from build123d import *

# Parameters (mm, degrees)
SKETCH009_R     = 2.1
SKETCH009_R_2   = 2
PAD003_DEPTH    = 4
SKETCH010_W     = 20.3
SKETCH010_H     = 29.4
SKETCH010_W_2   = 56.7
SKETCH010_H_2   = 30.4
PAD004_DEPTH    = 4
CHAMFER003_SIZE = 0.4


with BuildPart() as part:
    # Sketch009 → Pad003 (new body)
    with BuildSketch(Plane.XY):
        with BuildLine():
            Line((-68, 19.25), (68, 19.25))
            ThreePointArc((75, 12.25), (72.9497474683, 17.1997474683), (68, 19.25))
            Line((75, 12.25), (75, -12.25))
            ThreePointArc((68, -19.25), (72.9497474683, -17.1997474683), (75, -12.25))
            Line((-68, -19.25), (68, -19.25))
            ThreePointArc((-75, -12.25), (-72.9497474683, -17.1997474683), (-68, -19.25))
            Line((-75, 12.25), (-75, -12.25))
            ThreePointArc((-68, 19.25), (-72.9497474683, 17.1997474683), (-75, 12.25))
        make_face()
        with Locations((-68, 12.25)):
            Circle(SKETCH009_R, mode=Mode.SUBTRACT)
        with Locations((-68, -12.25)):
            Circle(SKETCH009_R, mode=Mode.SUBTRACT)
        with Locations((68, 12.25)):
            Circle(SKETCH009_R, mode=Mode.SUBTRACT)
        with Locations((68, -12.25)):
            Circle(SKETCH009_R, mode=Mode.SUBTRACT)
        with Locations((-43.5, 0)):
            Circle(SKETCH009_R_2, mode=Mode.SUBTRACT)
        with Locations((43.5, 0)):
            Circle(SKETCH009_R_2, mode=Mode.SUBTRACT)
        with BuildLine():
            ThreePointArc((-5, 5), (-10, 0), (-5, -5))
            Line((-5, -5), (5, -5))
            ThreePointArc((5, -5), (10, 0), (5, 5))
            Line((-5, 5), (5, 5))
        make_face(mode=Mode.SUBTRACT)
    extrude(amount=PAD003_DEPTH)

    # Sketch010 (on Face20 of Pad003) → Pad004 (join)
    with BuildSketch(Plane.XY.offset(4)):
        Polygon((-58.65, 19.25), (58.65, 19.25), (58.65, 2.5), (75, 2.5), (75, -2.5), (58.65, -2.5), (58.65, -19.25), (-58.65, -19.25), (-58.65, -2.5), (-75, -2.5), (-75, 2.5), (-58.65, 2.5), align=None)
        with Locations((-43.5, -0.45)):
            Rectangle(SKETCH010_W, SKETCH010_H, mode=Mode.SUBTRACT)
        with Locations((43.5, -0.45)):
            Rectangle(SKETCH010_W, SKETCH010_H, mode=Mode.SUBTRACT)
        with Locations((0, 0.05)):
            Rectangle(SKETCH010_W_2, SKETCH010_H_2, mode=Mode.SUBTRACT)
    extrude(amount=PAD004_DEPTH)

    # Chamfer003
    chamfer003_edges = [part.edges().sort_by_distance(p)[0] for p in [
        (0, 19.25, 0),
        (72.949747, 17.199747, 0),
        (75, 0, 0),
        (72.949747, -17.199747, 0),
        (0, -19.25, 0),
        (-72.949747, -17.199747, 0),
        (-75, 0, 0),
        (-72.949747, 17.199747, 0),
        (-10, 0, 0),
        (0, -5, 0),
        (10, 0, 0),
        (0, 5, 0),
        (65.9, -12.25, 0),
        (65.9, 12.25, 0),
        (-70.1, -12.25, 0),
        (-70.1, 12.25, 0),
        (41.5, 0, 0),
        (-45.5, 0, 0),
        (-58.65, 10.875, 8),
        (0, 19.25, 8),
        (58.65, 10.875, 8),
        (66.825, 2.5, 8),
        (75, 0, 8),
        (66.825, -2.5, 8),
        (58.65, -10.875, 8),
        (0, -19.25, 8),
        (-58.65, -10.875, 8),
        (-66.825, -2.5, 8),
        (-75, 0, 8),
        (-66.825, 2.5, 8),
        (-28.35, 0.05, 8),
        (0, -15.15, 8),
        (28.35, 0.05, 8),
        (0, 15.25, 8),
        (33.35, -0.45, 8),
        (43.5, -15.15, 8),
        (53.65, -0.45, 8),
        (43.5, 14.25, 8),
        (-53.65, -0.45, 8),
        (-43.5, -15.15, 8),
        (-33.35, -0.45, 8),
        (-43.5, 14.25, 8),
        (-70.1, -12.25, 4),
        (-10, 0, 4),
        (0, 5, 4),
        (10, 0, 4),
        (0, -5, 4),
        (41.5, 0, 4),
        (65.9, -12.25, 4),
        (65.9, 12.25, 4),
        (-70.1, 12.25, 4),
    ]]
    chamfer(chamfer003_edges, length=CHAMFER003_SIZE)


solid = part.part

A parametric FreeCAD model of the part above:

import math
import FreeCAD as App
import Part
import Sketcher
from FreeCAD import Vector
Q = App.Units.Quantity


def edges_at(feature, points):
    """Names of the edges that pass closest to the given points."""
    edges = feature.Shape.Edges
    near = lambda p: min(range(len(edges)), key=lambda i: edges[i].distToShape(Part.Vertex(*p))[0])
    return sorted({f"Edge{near(p) + 1}" for p in points})


def add_polygon(sketch, points):
    """Adds a closed chain of lines whose ends are joined by coincident constraints."""
    first, n = sketch.GeometryCount, len(points)
    for a, b in zip(points, points[1:] + points[:1]):
        sketch.addGeometry(Part.LineSegment(App.Vector(*a, 0), App.Vector(*b, 0)), False)
    for i in range(n):
        sketch.addConstraint(Sketcher.Constraint("Coincident", first + i, 2, first + (i + 1) % n, 1))

doc = App.newDocument("Part")
body = doc.addObject("PartDesign::Body", "Body")

# Sketch on XY plane
sketch1 = body.newObject("Sketcher::SketchObject", "Sketch")
sketch1.AttachmentSupport = (doc.getObject("XY_Plane"), [""])
sketch1.MapMode = "FlatFace"
sketch1.addGeometry([
    Part.LineSegment(Vector(68, 19.2, 0), Vector(-68, 19.2, 0)),  # 0
    Part.ArcOfCircle(Part.Circle(Vector(-68, 12.2, 0), Vector(0, 0, 1), 7), math.radians(90), math.radians(180)),  # 1
    Part.LineSegment(Vector(-75, 12.2, 0), Vector(-75, -12.2, 0)),  # 2
    Part.ArcOfCircle(Part.Circle(Vector(-68, -12.2, 0), Vector(0, 0, 1), 7), math.radians(180), math.radians(270)),  # 3
    Part.LineSegment(Vector(-68, -19.2, 0), Vector(68, -19.2, 0)),  # 4
    Part.ArcOfCircle(Part.Circle(Vector(68, -12.2, 0), Vector(0, 0, 1), 7), math.radians(-90), math.radians(0)),  # 5
    Part.LineSegment(Vector(75, -12.2, 0), Vector(75, 12.2, 0)),  # 6
    Part.ArcOfCircle(Part.Circle(Vector(68, 12.2, 0), Vector(0, 0, 1), 7), math.radians(0), math.radians(90)),  # 7
    Part.Circle(Vector(68, -12.2, 0), Vector(0, 0, 1), 2.1),  # 8
    Part.Circle(Vector(-68, -12.2, 0), Vector(0, 0, 1), 2.1),  # 9
    Part.Circle(Vector(43.5, 0, 0), Vector(0, 0, 1), 2),  # 10
    Part.Circle(Vector(68, 12.2, 0), Vector(0, 0, 1), 2.1),  # 11
    Part.LineSegment(Vector(-5, 5, 0), Vector(5, 5, 0)),  # 12
    Part.ArcOfCircle(Part.Circle(Vector(5, 0, 0), Vector(0, 0, 1), 5), math.radians(-90), math.radians(90)),  # 13
    Part.LineSegment(Vector(5, -5, 0), Vector(-5, -5, 0)),  # 14
    Part.ArcOfCircle(Part.Circle(Vector(-5, 0, 0), Vector(0, 0, 1), 5), math.radians(90), math.radians(270)),  # 15
    Part.Circle(Vector(-43.5, 0, 0), Vector(0, 0, 1), 2),  # 16
    Part.Circle(Vector(-68, 12.2, 0), Vector(0, 0, 1), 2.1),  # 17
], False)
sketch1.addConstraint([
    Sketcher.Constraint("Tangent", 0, 2, 1, 1),
    Sketcher.Constraint("Tangent", 1, 2, 2, 1),
    Sketcher.Constraint("Tangent", 2, 2, 3, 1),
    Sketcher.Constraint("Tangent", 3, 2, 4, 1),
    Sketcher.Constraint("Tangent", 4, 2, 5, 1),
    Sketcher.Constraint("Tangent", 5, 2, 6, 1),
    Sketcher.Constraint("Tangent", 6, 2, 7, 1),
    Sketcher.Constraint("Tangent", 7, 2, 0, 1),
    Sketcher.Constraint("Tangent", 12, 2, 13, 2),
    Sketcher.Constraint("Tangent", 13, 1, 14, 1),
    Sketcher.Constraint("Tangent", 14, 2, 15, 2),
    Sketcher.Constraint("Tangent", 15, 1, 12, 1),
    Sketcher.Constraint("Horizontal", 0),
    Sketcher.Constraint("Vertical", 2),
    Sketcher.Constraint("Horizontal", 4),
    Sketcher.Constraint("Vertical", 6),
    Sketcher.Constraint("Horizontal", 12),
    Sketcher.Constraint("Horizontal", 14),
    Sketcher.Constraint("Coincident", 8, 3, 5, 3),
    Sketcher.Constraint("Coincident", 9, 3, 3, 3),
    Sketcher.Constraint("Coincident", 11, 3, 7, 3),
    Sketcher.Constraint("Coincident", 17, 3, 1, 3),
    Sketcher.Constraint("Equal", 1, 3),
    Sketcher.Constraint("Equal", 3, 5),
    Sketcher.Constraint("Equal", 5, 7),
    Sketcher.Constraint("Equal", 8, 9),
    Sketcher.Constraint("Equal", 9, 11),
    Sketcher.Constraint("Equal", 10, 16),
    Sketcher.Constraint("Equal", 11, 17),
    Sketcher.Constraint("Symmetric", 1, 3, 5, 3, -1, 1),
    Sketcher.Constraint("Symmetric", 13, 3, 15, 3, -1, 1),
    Sketcher.Constraint("Symmetric", 10, 3, 16, 3, -1, 1),
    Sketcher.Constraint("PointOnObject", 10, 3, -1),
    Sketcher.Constraint("Diameter", 10, Q("4 mm")),
    Sketcher.Constraint("Radius", 1, Q("7 mm")),
    Sketcher.Constraint("Radius", 13, Q("5 mm")),
    Sketcher.Constraint("Diameter", 8, Q("4.2 mm")),
    Sketcher.Constraint("DistanceX", 0, 2, 0, 1, Q("136 mm")),
    Sketcher.Constraint("DistanceX", 12, 1, 12, 2, Q("10 mm")),
    Sketcher.Constraint("DistanceY", 2, 2, 2, 1, Q("24.5 mm")),
    Sketcher.Constraint("DistanceX", -1, 1, 10, 3, Q("43.5 mm")),
])
pad1 = body.newObject("PartDesign::Pad", "Pad")
pad1.Profile = sketch1
pad1.Length = 4

# Sketch on XY plane
sketch2 = body.newObject("Sketcher::SketchObject", "Sketch001")
sketch2.AttachmentSupport = (doc.getObject("XY_Plane"), [""])
sketch2.MapMode = "FlatFace"
sketch2.AttachmentOffset = App.Placement(Vector(0, 0, 4), App.Rotation())
add_polygon(sketch2, [(59, 19), (-59, 19), (-59, 2), (-75, 2), (-75, -2), (-59, -2), (-59, -19), (59, -19), (59, -2), (75, -2), (75, 2), (59, 2)])  # lines 0-11
add_polygon(sketch2, [(33, -15), (33, 14), (54, 14), (54, -15)])  # lines 12-15
add_polygon(sketch2, [(-28, -15), (-28, 15), (28, 15), (28, -15)])  # lines 16-19
add_polygon(sketch2, [(-54, -15), (-54, 14), (-33, 14), (-33, -15)])  # lines 20-23
sketch2.addConstraint([
    Sketcher.Constraint("Horizontal", 0),
    Sketcher.Constraint("Vertical", 1),
    Sketcher.Constraint("Horizontal", 2),
    Sketcher.Constraint("Vertical", 3),
    Sketcher.Constraint("Horizontal", 4),
    Sketcher.Constraint("Vertical", 5),
    Sketcher.Constraint("Horizontal", 6),
    Sketcher.Constraint("Vertical", 7),
    Sketcher.Constraint("Horizontal", 8),
    Sketcher.Constraint("Vertical", 9),
    Sketcher.Constraint("Horizontal", 10),
    Sketcher.Constraint("Vertical", 11),
    Sketcher.Constraint("Vertical", 12),
    Sketcher.Constraint("Horizontal", 13),
    Sketcher.Constraint("Vertical", 14),
    Sketcher.Constraint("Horizontal", 15),
    Sketcher.Constraint("Vertical", 16),
    Sketcher.Constraint("Horizontal", 17),
    Sketcher.Constraint("Vertical", 18),
    Sketcher.Constraint("Horizontal", 19),
    Sketcher.Constraint("Vertical", 20),
    Sketcher.Constraint("Horizontal", 21),
    Sketcher.Constraint("Vertical", 22),
    Sketcher.Constraint("Horizontal", 23),
    Sketcher.Constraint("Symmetric", 0, 2, 6, 2, -1, 1),
    Sketcher.Constraint("Symmetric", 2, 2, 8, 2, -1, 1),
    Sketcher.Constraint("Symmetric", 4, 2, 10, 2, -1, 1),
    Sketcher.Constraint("Symmetric", 4, 2, 7, 2, -2),
    Sketcher.Constraint("Symmetric", 13, 2, 20, 2, -2),
    Sketcher.Constraint("Symmetric", 15, 2, 22, 2, -2),
    Sketcher.Constraint("Horizontal", 15, 2, 18, 2),
    Sketcher.Constraint("DistanceY", 3, 2, 3, 1, Q("5 mm")),
    Sketcher.Constraint("DistanceX", 0, 2, 0, 1, Q("117.3 mm")),
    Sketcher.Constraint("DistanceX", 13, 1, 13, 2, Q("20.3 mm")),
    Sketcher.Constraint("DistanceX", 17, 1, 17, 2, Q("56.7 mm")),
    Sketcher.Constraint("DistanceY", 12, 1, 12, 2, Q("29.4 mm")),
    Sketcher.Constraint("DistanceY", 16, 1, 16, 2, Q("30.4 mm")),
    Sketcher.Constraint("DistanceX", 2, 2, -1, 1, Q("75 mm")),
    Sketcher.Constraint("DistanceY", 12, 2, 11, 2, Q("5 mm")),
    Sketcher.Constraint("DistanceX", 13, 2, 11, 2, Q("5 mm")),
    Sketcher.Constraint("DistanceX", 17, 2, 12, 2, Q("5 mm")),
    Sketcher.Constraint("DistanceY", 1, 2, 1, 1, Q("16.75 mm")),
])
pad2 = body.newObject("PartDesign::Pad", "Pad001")
pad2.Profile = sketch2
pad2.Length = 4
doc.recompute()

chamfer = body.newObject("PartDesign::Chamfer", "Chamfer")
chamfer.Base = (pad2, edges_at(pad2, [
    (0, 19.25, 0),
    (72.95, 17.2, 0),
    (75, 0, 0),
    (72.95, -17.2, 0),
    (0, -19.25, 0),
    (-72.95, -17.2, 0),
    (-75, 0, 0),
    (-72.95, 17.2, 0),
    (-10, 0, 0),
    (0, -5, 0),
    (10, 0, 0),
    (0, 5, 0),
    (65.9, -12.25, 0),
    (65.9, 12.25, 0),
    (-70.1, -12.25, 0),
    (-70.1, 12.25, 0),
    (41.5, 0, 0),
    (-45.5, 0, 0),
    (-58.65, 10.875, 8),
    (0, 19.25, 8),
    (58.65, 10.875, 8),
    (66.825, 2.5, 8),
    (75, 0, 8),
    (66.825, -2.5, 8),
    (58.65, -10.875, 8),
    (0, -19.25, 8),
    (-58.65, -10.875, 8),
    (-66.825, -2.5, 8),
    (-75, 0, 8),
    (-66.825, 2.5, 8),
    (-28.35, 0.05, 8),
    (0, -15.15, 8),
    (28.35, 0.05, 8),
    (0, 15.25, 8),
    (33.35, -0.45, 8),
    (43.5, -15.15, 8),
    (53.65, -0.45, 8),
    (43.5, 14.25, 8),
    (-53.65, -0.45, 8),
    (-43.5, -15.15, 8),
    (-33.35, -0.45, 8),
    (-43.5, 14.25, 8),
    (-70.1, -12.25, 4),
    (-10, 0, 4),
    (0, 5, 4),
    (10, 0, 4),
    (0, -5, 4),
    (41.5, 0, 4),
    (65.9, -12.25, 4),
    (65.9, 12.25, 4),
    (-70.1, 12.25, 4),
]))
chamfer.Size = 0.4

doc.recompute()
